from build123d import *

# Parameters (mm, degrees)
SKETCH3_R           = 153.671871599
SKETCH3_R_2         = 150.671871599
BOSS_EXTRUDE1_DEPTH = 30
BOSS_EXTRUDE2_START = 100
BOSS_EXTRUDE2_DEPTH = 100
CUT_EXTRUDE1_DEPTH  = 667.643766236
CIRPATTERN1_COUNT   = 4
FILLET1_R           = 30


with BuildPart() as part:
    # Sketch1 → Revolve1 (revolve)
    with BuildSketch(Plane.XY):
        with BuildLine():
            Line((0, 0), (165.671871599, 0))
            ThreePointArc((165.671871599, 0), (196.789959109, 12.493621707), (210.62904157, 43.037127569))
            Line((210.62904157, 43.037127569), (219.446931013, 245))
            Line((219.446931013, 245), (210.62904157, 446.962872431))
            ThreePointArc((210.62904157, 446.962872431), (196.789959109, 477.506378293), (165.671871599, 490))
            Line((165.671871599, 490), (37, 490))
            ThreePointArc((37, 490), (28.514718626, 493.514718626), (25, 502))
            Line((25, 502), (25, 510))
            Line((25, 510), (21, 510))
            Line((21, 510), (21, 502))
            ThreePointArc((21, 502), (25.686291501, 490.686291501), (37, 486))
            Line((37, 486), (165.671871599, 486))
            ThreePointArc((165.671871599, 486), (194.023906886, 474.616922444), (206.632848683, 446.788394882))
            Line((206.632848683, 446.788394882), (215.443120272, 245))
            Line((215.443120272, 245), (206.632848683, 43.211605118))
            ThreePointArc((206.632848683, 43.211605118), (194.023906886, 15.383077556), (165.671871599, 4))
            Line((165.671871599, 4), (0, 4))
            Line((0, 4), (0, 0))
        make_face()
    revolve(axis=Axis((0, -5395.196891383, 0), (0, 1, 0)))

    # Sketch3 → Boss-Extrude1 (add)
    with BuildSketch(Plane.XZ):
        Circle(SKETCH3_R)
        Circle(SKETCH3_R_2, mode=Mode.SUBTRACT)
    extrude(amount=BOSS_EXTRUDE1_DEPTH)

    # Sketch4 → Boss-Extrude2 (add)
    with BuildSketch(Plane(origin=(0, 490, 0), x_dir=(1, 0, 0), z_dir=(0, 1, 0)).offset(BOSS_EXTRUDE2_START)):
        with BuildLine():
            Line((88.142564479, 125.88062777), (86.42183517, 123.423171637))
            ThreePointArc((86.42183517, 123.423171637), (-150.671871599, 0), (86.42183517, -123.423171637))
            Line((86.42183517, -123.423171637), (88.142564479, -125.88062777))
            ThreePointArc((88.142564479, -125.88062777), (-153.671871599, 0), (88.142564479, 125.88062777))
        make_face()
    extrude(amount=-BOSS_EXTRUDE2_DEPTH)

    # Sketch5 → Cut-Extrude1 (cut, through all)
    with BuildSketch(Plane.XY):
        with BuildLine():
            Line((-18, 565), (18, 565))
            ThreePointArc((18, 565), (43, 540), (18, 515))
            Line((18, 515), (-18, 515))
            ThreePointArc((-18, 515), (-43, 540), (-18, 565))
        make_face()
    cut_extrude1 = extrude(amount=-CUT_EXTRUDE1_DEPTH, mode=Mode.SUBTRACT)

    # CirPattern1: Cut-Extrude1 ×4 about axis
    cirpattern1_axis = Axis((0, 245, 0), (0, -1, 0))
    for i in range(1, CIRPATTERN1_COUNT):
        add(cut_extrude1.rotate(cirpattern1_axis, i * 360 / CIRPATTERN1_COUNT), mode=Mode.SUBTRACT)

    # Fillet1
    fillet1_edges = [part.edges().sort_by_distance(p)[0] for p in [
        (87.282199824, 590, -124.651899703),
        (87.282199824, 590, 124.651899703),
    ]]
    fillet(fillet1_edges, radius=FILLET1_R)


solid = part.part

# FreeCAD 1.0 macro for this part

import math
import FreeCAD as App
import Part
import Sketcher

V = App.Vector
Q = App.Units.Quantity


def edges_at(feature, points):
    """Names of the edges that pass closest to the given points."""
    edges = feature.Shape.Edges
    near = lambda p: min(range(len(edges)), key=lambda i: edges[i].distToShape(Part.Vertex(*p))[0])
    return sorted({f"Edge{near(p) + 1}" for p in points})

doc = App.newDocument("Part")
params = doc.addObject("Spreadsheet::Sheet", "Params")
for row, (alias, value) in enumerate([
    ("sketch1_radius", "45 mm"),
    ("sketch1_radius2", "12 mm"),
    ("sketch1_radius3", "16 mm"),
    ("sketch1_height", "8 mm"),
    ("revolution_angle", "360 deg"),
    ("pad1_length", "30 mm"),
    ("sketch3_length", "3 mm"),
    ("pad2_length", "100 mm"),
    ("sketch4_radius", "25 mm"),
    ("sketch4_width", "36 mm"),
    ("fillet_radius", "30 mm"),
], start=1):
    params.set(f"A{row}", alias)
    params.set(f"B{row}", "=" + value)
    params.setAlias(f"B{row}", alias)

body = doc.addObject("PartDesign::Body", "Body")

# Sketch on XY plane
sketch1 = body.newObject("Sketcher::SketchObject", "Sketch")
sketch1.AttachmentSupport = (doc.getObject("XY_Plane"), [""])
sketch1.MapMode = "FlatFace"
sketch1.addGeometry(Part.LineSegment(V(0, 0, 0), V(165.7, 0, 0)), False)
sketch1.addGeometry(Part.ArcOfCircle(Part.Circle(V(165.7, 45, 0), V(0, 0, 1), 45), math.radians(-90), math.radians(-2)), False)
sketch1.addGeometry(Part.LineSegment(V(210.6, 43, 0), V(219.4, 245, 0)), False)
sketch1.addGeometry(Part.LineSegment(V(219.4, 245, 0), V(210.6, 447, 0)), False)
sketch1.addGeometry(Part.ArcOfCircle(Part.Circle(V(165.7, 445, 0), V(0, 0, 1), 45), math.radians(2), math.radians(90)), False)
sketch1.addGeometry(Part.LineSegment(V(165.7, 490, 0), V(37, 490, 0)), False)
sketch1.addGeometry(Part.ArcOfCircle(Part.Circle(V(37, 502, 0), V(0, 0, 1), 12), math.radians(-180), math.radians(-90)), False)
sketch1.addGeometry(Part.LineSegment(V(25, 502, 0), V(25, 510, 0)), False)
sketch1.addGeometry(Part.LineSegment(V(25, 510, 0), V(21, 510, 0)), False)
sketch1.addGeometry(Part.LineSegment(V(21, 510, 0), V(21, 502, 0)), False)
sketch1.addGeometry(Part.ArcOfCircle(Part.Circle(V(37, 502, 0), V(0, 0, 1), 16), math.radians(180), math.radians(270)), False)
sketch1.addGeometry(Part.LineSegment(V(37, 486, 0), V(165.7, 486, 0)), False)
sketch1.addGeometry(Part.ArcOfCircle(Part.Circle(V(165.7, 445, 0), V(0, 0, 1), 41), math.radians(2), math.radians(90)), False)
sketch1.addGeometry(Part.LineSegment(V(206.6, 446.8, 0), V(215.4, 245, 0)), False)
sketch1.addGeometry(Part.LineSegment(V(215.4, 245, 0), V(206.6, 43.2, 0)), False)
sketch1.addGeometry(Part.ArcOfCircle(Part.Circle(V(165.7, 45, 0), V(0, 0, 1), 41), math.radians(-90), math.radians(-2)), False)
sketch1.addGeometry(Part.LineSegment(V(165.7, 4, 0), V(0, 4, 0)), False)
sketch1.addGeometry(Part.LineSegment(V(0, 4, 0), V(0, 0, 0)), False)
sketch1.addConstraint(Sketcher.Constraint("Tangent", 0, 2, 1, 1))
sketch1.addConstraint(Sketcher.Constraint("Tangent", 1, 2, 2, 1))
sketch1.addConstraint(Sketcher.Constraint("Coincident", 2, 2, 3, 1))
sketch1.addConstraint(Sketcher.Constraint("Tangent", 3, 2, 4, 1))
sketch1.addConstraint(Sketcher.Constraint("Tangent", 4, 2, 5, 1))
sketch1.addConstraint(Sketcher.Constraint("Tangent", 5, 2, 6, 2))
sketch1.addConstraint(Sketcher.Constraint("Tangent", 6, 1, 7, 1))
sketch1.addConstraint(Sketcher.Constraint("Coincident", 7, 2, 8, 1))
sketch1.addConstraint(Sketcher.Constraint("Coincident", 8, 2, 9, 1))
sketch1.addConstraint(Sketcher.Constraint("Tangent", 9, 2, 10, 1))
sketch1.addConstraint(Sketcher.Constraint("Tangent", 10, 2, 11, 1))
sketch1.addConstraint(Sketcher.Constraint("Tangent", 11, 2, 12, 2))
sketch1.addConstraint(Sketcher.Constraint("Tangent", 12, 1, 13, 1))
sketch1.addConstraint(Sketcher.Constraint("Coincident", 13, 2, 14, 1))
sketch1.addConstraint(Sketcher.Constraint("Tangent", 14, 2, 15, 2))
sketch1.addConstraint(Sketcher.Constraint("Tangent", 15, 1, 16, 1))
sketch1.addConstraint(Sketcher.Constraint("Coincident", 16, 2, 17, 1))
sketch1.addConstraint(Sketcher.Constraint("Coincident", 17, 2, 0, 1))
sketch1.addConstraint(Sketcher.Constraint("Horizontal", 0))
sketch1.addConstraint(Sketcher.Constraint("Horizontal", 5))
sketch1.addConstraint(Sketcher.Constraint("Vertical", 7))
sketch1.addConstraint(Sketcher.Constraint("Horizontal", 8))
sketch1.addConstraint(Sketcher.Constraint("Vertical", 9))
sketch1.addConstraint(Sketcher.Constraint("Horizontal", 11))
sketch1.addConstraint(Sketcher.Constraint("Horizontal", 16))
sketch1.addConstraint(Sketcher.Constraint("Vertical", 17))
sketch1.addConstraint(Sketcher.Constraint("Coincident", 17, 2, -1, 1))
sketch1.addConstraint(Sketcher.Constraint("Coincident", 10, 3, 6, 3))
sketch1.addConstraint(Sketcher.Constraint("Coincident", 12, 3, 4, 3))
sketch1.addConstraint(Sketcher.Constraint("Coincident", 15, 3, 1, 3))
sketch1.addConstraint(Sketcher.Constraint("Equal", 1, 4))
sketch1.addConstraint(Sketcher.Constraint("Equal", 12, 15))
sketch1.addConstraint(Sketcher.Constraint("Parallel", 3, 13))
sketch1.addConstraint(Sketcher.Constraint("Parallel", 2, 14))
sketch1.addConstraint(Sketcher.Constraint("Horizontal", 2, 2, 13, 2))
sketch1.addConstraint(Sketcher.Constraint("Vertical", 1, 3, 4, 3))
sketch1.addConstraint(Sketcher.Constraint("Radius", 1, 45.0))
sketch1.addConstraint(Sketcher.Constraint("Radius", 6, 12.0))
sketch1.addConstraint(Sketcher.Constraint("Radius", 10, 16.0))
sketch1.addConstraint(Sketcher.Constraint("DistanceY", 7, 1, 7, 2, 8.0))
sketch1.addConstraint(Sketcher.Constraint("DistanceY", -1, 1, 4, 3, 445.0))
sketch1.addConstraint(Sketcher.Constraint("DistanceX", -1, 1, 6, 3, 37.0))
sketch1.addConstraint(Sketcher.Constraint("Angle", 2, Q("87.5 deg")))
sketch1.addConstraint(Sketcher.Constraint("DistanceX", 0, 1, 0, 2, 165.671872))
sketch1.setExpression("Constraints[36]", "Params.sketch1_radius")
sketch1.setExpression("Constraints[37]", "Params.sketch1_radius2")
sketch1.setExpression("Constraints[38]", "Params.sketch1_radius3")
sketch1.setExpression("Constraints[39]", "Params.sketch1_height")
revolution = body.newObject("PartDesign::Revolution", "Revolution")
revolution.Profile = sketch1
revolution.ReferenceAxis = (sketch1, ["V_Axis"])
revolution.setExpression("Angle", "Params.revolution_angle")

# Sketch on XZ plane
sketch2 = body.newObject("Sketcher::SketchObject", "Sketch001")
sketch2.AttachmentSupport = (doc.getObject("XZ_Plane"), [""])
sketch2.MapMode = "FlatFace"
sketch2.addGeometry(Part.Circle(V(0, 0, 0), V(0, 0, 1), 154), False)
sketch2.addGeometry(Part.Circle(V(0, 0, 0), V(0, 0, 1), 151), False)
sketch2.addConstraint(Sketcher.Constraint("Coincident", 0, 3, -1, 1))
sketch2.addConstraint(Sketcher.Constraint("Coincident", 1, 3, -1, 1))
sketch2.addConstraint(Sketcher.Constraint("Diameter", 0, 307.343743))
sketch2.addConstraint(Sketcher.Constraint("Diameter", 1, 301.343743))
pad1 = body.newObject("PartDesign::Pad", "Pad")
pad1.Profile = sketch2
pad1.setExpression("Length", "Params.pad1_length")

# Sketch on XZ plane
sketch3 = body.newObject("Sketcher::SketchObject", "Sketch002")
sketch3.AttachmentSupport = (doc.getObject("XZ_Plane"), [""])
sketch3.MapMode = "FlatFace"
sketch3.AttachmentOffset = App.Placement(V(0, 0, -590), App.Rotation())
sketch3.addGeometry(Part.LineSegment(V(86.4, -123.4, 0), V(88.1, -125.9, 0)), False)
sketch3.addGeometry(Part.ArcOfCircle(Part.Circle(V(0, 0, 0), V(0, 0, 1), 153.7), math.radians(55), math.radians(305)), False)
sketch3.addGeometry(Part.LineSegment(V(88.1, 125.9, 0), V(86.4, 123.4, 0)), False)
sketch3.addGeometry(Part.ArcOfCircle(Part.Circle(V(0, 0, 0), V(0, 0, 1), 150.7), math.radians(55), math.radians(305)), False)
sketch3.addConstraint(Sketcher.Constraint("Coincident", 0, 2, 1, 2))
sketch3.addConstraint(Sketcher.Constraint("Coincident", 1, 1, 2, 1))
sketch3.addConstraint(Sketcher.Constraint("Coincident", 2, 2, 3, 1))
sketch3.addConstraint(Sketcher.Constraint("Coincident", 3, 2, 0, 1))
sketch3.addConstraint(Sketcher.Constraint("Coincident", 1, 3, -1, 1))
sketch3.addConstraint(Sketcher.Constraint("Coincident", 3, 3, -1, 1))
sketch3.addConstraint(Sketcher.Constraint("Vertical", 0, 2, 1, 1))
sketch3.addConstraint(Sketcher.Constraint("Vertical", 2, 2, 3, 2))
sketch3.addConstraint(Sketcher.Constraint("Angle", 0, Q("-55 deg")))
sketch3.addConstraint(Sketcher.Constraint("Distance", 0, 3.0))
sketch3.addConstraint(Sketcher.Constraint("Radius", 1, 153.671872))
sketch3.addConstraint(Sketcher.Constraint("DistanceY", 0, 2, 2, 2, 249.303799))
sketch3.setExpression("Constraints[9]", "Params.sketch3_length")
pad2 = body.newObject("PartDesign::Pad", "Pad001")
pad2.Profile = sketch3
pad2.setExpression("Length", "Params.pad2_length")

# Sketch on XY plane
sketch4 = body.newObject("Sketcher::SketchObject", "Sketch003")
sketch4.AttachmentSupport = (doc.getObject("XY_Plane"), [""])
sketch4.MapMode = "FlatFace"
sketch4.addGeometry(Part.LineSegment(V(18, 565, 0), V(-18, 565, 0)), False)
sketch4.addGeometry(Part.ArcOfCircle(Part.Circle(V(-18, 540, 0), V(0, 0, 1), 25), math.radians(90), math.radians(270)), False)
sketch4.addGeometry(Part.LineSegment(V(-18, 515, 0), V(18, 515, 0)), False)
sketch4.addGeometry(Part.ArcOfCircle(Part.Circle(V(18, 540, 0), V(0, 0, 1), 25), math.radians(-90), math.radians(90)), False)
sketch4.addConstraint(Sketcher.Constraint("Tangent", 0, 2, 1, 1))
sketch4.addConstraint(Sketcher.Constraint("Tangent", 1, 2, 2, 1))
sketch4.addConstraint(Sketcher.Constraint("Tangent", 2, 2, 3, 1))
sketch4.addConstraint(Sketcher.Constraint("Tangent", 3, 2, 0, 1))
sketch4.addConstraint(Sketcher.Constraint("Horizontal", 0))
sketch4.addConstraint(Sketcher.Constraint("Horizontal", 2))
sketch4.addConstraint(Sketcher.Constraint("Radius", 1, 25.0))
sketch4.addConstraint(Sketcher.Constraint("DistanceX", 0, 2, 0, 1, 36.0))
sketch4.addConstraint(Sketcher.Constraint("DistanceX", 1, 3, -1, 1, 18.0))
sketch4.addConstraint(Sketcher.Constraint("DistanceY", -1, 1, 1, 3, 540.0))
sketch4.setExpression("Constraints[6]", "Params.sketch4_radius")
sketch4.setExpression("Constraints[7]", "Params.sketch4_width")
pocket1 = body.newObject("PartDesign::Pocket", "Pocket")
pocket1.Profile = sketch4
pocket1.Type = "ThroughAll"
doc.recompute()

polarpattern = body.newObject("PartDesign::PolarPattern", "PolarPattern")
polarpattern.Originals = [pocket1]
polarpattern.Axis = (doc.getObject("Y_Axis"), [""])
polarpattern.Angle = 360
polarpattern.Occurrences = 4
body.Tip = polarpattern
doc.recompute()

fillet = body.newObject("PartDesign::Fillet", "Fillet")
fillet.Base = (polarpattern, edges_at(polarpattern, [(87.282, 590, -124.652), (87.282, 590, 124.652)]))
fillet.setExpression("Radius", "Params.fillet_radius")

doc.recompute()
